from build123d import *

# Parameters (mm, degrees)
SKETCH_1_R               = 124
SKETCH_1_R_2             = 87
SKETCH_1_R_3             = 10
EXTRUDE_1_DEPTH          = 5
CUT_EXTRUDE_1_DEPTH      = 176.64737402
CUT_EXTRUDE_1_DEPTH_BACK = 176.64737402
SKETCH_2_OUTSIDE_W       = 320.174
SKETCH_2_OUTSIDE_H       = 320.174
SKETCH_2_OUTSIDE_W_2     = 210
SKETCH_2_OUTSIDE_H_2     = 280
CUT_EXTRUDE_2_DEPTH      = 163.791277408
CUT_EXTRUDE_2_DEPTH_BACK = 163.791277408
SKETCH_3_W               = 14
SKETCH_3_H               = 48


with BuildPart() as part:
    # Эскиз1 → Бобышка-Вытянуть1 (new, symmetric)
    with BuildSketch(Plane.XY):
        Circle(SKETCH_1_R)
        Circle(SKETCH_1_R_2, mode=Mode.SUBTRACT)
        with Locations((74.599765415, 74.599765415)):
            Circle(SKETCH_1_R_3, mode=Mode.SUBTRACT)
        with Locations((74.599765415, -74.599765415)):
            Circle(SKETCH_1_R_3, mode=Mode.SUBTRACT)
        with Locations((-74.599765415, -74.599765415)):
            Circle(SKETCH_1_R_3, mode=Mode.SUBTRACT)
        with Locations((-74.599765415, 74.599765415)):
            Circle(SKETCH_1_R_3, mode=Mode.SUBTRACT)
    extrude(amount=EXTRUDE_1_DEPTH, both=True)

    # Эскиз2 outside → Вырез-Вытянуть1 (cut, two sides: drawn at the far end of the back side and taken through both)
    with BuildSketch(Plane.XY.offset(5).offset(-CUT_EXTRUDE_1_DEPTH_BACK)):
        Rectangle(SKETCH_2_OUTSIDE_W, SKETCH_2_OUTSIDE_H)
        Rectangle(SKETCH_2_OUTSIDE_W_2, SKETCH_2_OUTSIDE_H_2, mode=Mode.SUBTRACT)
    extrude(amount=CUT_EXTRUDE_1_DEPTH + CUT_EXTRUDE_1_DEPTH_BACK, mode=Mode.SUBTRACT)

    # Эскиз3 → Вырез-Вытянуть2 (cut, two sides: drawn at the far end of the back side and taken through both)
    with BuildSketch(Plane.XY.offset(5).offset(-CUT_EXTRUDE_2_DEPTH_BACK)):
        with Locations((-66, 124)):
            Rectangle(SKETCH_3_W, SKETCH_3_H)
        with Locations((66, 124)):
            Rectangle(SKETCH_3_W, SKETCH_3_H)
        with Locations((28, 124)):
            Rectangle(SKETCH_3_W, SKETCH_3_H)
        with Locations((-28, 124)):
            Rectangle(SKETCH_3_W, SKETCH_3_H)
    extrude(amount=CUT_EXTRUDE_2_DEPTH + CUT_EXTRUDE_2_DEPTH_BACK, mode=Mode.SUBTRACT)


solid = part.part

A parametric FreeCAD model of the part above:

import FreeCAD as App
import Part
import Sketcher
from FreeCAD import Vector

doc = App.newDocument("Part")
body = doc.addObject("PartDesign::Body", "Body")

# Sketch on XY plane
sketch1 = doc.addObject("Sketcher::SketchObject", "Sketch")
body.addObject(sketch1)
sketch1.AttachmentSupport = (doc.XY_Plane, [""])
sketch1.MapMode = "FlatFace"
sketch1.addGeometry([
    Part.Circle(Vector(0, 0, 0), Vector(0, 0, 1), 124),  # 0
    Part.Circle(Vector(-74.599765, -74.599765, 0), Vector(0, 0, 1), 10),  # 1
    Part.Circle(Vector(74.599765, -74.599765, 0), Vector(0, 0, 1), 10),  # 2
    Part.Circle(Vector(-74.599765, 74.599765, 0), Vector(0, 0, 1), 10),  # 3
    Part.Circle(Vector(0, 0, 0), Vector(0, 0, 1), 87),  # 4
    Part.Circle(Vector(74.599765, 74.599765, 0), Vector(0, 0, 1), 10),  # 5
], False)
sketch1.addConstraint([
    Sketcher.Constraint("Coincident", 0, 3, -1, 1),
    Sketcher.Constraint("Coincident", 4, 3, -1, 1),
    Sketcher.Constraint("Equal", 1, 2),
    Sketcher.Constraint("Equal", 2, 3),
    Sketcher.Constraint("Equal", 3, 5),
    Sketcher.Constraint("Symmetric", 2, 3, 3, 3, -1, 1),
    Sketcher.Constraint("Symmetric", 1, 3, 5, 3, -1, 1),
    Sketcher.Constraint("Symmetric", 1, 3, 2, 3, -2),
    Sketcher.Constraint("Diameter", 0, 248.0),
    Sketcher.Constraint("Diameter", 1, 20.0),
    Sketcher.Constraint("Diameter", 4, 174.0),
    Sketcher.Constraint("DistanceX", 1, 3, 2, 3, 149.199531),
    Sketcher.Constraint("DistanceY", 1, 3, 3, 3, 149.199531),
])
pad1 = doc.addObject("PartDesign::Pad", "Pad")
body.addObject(pad1)
pad1.Profile = sketch1
pad1.Length = 10
pad1.Midplane = True

# Sketch on XY plane
sketch2 = doc.addObject("Sketcher::SketchObject", "Sketch001")
body.addObject(sketch2)
sketch2.AttachmentSupport = (doc.XY_Plane, [""])
sketch2.MapMode = "FlatFace"
sketch2.AttachmentOffset = App.Placement(Vector(0, 0, 5), App.Rotation())
sketch2.addGeometry([
    Part.LineSegment(Vector(-160.087, 160.087, 0), Vector(-160.087, -160.087, 0)),  # 0
    Part.LineSegment(Vector(-160.087, -160.087, 0), Vector(160.087, -160.087, 0)),  # 1
    Part.LineSegment(Vector(160.087, -160.087, 0), Vector(160.087, 160.087, 0)),  # 2
    Part.LineSegment(Vector(160.087, 160.087, 0), Vector(-160.087, 160.087, 0)),  # 3
    Part.LineSegment(Vector(105, -140, 0), Vector(-105, -140, 0)),  # 4
    Part.LineSegment(Vector(-105, -140, 0), Vector(-105, 140, 0)),  # 5
    Part.LineSegment(Vector(-105, 140, 0), Vector(105, 140, 0)),  # 6
    Part.LineSegment(Vector(105, 140, 0), Vector(105, -140, 0)),  # 7
], False)
sketch2.addConstraint([
    Sketcher.Constraint("Coincident", 0, 2, 1, 1),
    Sketcher.Constraint("Coincident", 1, 2, 2, 1),
    Sketcher.Constraint("Coincident", 2, 2, 3, 1),
    Sketcher.Constraint("Coincident", 3, 2, 0, 1),
    Sketcher.Constraint("Coincident", 4, 2, 5, 1),
    Sketcher.Constraint("Coincident", 5, 2, 6, 1),
    Sketcher.Constraint("Coincident", 6, 2, 7, 1),
    Sketcher.Constraint("Coincident", 7, 2, 4, 1),
    Sketcher.Constraint("Vertical", 0),
    Sketcher.Constraint("Horizontal", 1),
    Sketcher.Constraint("Vertical", 2),
    Sketcher.Constraint("Horizontal", 3),
    Sketcher.Constraint("Horizontal", 4),
    Sketcher.Constraint("Vertical", 5),
    Sketcher.Constraint("Horizontal", 6),
    Sketcher.Constraint("Vertical", 7),
    Sketcher.Constraint("Symmetric", 0, 2, 2, 2, -1, 1),
    Sketcher.Constraint("Symmetric", 4, 2, 6, 2, -1, 1),
    Sketcher.Constraint("Equal", 3, 0),
    Sketcher.Constraint("DistanceX", 4, 2, 4, 1, 210.0),
    Sketcher.Constraint("DistanceY", 5, 1, 5, 2, 280.0),
    Sketcher.Constraint("DistanceX", 1, 1, 1, 2, 320.174),
])
pocket1 = doc.addObject("PartDesign::Pocket", "Pocket")
body.addObject(pocket1)
pocket1.Profile = sketch2
pocket1.Type = "ThroughAll"
pocket1.Midplane = True

# Sketch on XY plane
sketch3 = doc.addObject("Sketcher::SketchObject", "Sketch002")
body.addObject(sketch3)
sketch3.AttachmentSupport = (doc.XY_Plane, [""])
sketch3.MapMode = "FlatFace"
sketch3.AttachmentOffset = App.Placement(Vector(0, 0, 5), App.Rotation())
sketch3.addGeometry([
    Part.LineSegment(Vector(-73, 148, 0), Vector(-73, 100, 0)),  # 0
    Part.LineSegment(Vector(-73, 100, 0), Vector(-59, 100, 0)),  # 1
    Part.LineSegment(Vector(-59, 100, 0), Vector(-59, 148, 0)),  # 2
    Part.LineSegment(Vector(-59, 148, 0), Vector(-73, 148, 0)),  # 3
    Part.LineSegment(Vector(59, 148, 0), Vector(59, 100, 0)),  # 4
    Part.LineSegment(Vector(59, 100, 0), Vector(73, 100, 0)),  # 5
    Part.LineSegment(Vector(73, 100, 0), Vector(73, 148, 0)),  # 6
    Part.LineSegment(Vector(73, 148, 0), Vector(59, 148, 0)),  # 7
    Part.LineSegment(Vector(21, 148, 0), Vector(21, 100, 0)),  # 8
    Part.LineSegment(Vector(21, 100, 0), Vector(35, 100, 0)),  # 9
    Part.LineSegment(Vector(35, 100, 0), Vector(35, 148, 0)),  # 10
    Part.LineSegment(Vector(35, 148, 0), Vector(21, 148, 0)),  # 11
    Part.LineSegment(Vector(-35, 148, 0), Vector(-35, 100, 0)),  # 12
    Part.LineSegment(Vector(-35, 100, 0), Vector(-21, 100, 0)),  # 13
    Part.LineSegment(Vector(-21, 100, 0), Vector(-21, 148, 0)),  # 14
    Part.LineSegment(Vector(-21, 148, 0), Vector(-35, 148, 0)),  # 15
], False)
sketch3.addConstraint([
    Sketcher.Constraint("Coincident", 0, 2, 1, 1),
    Sketcher.Constraint("Coincident", 1, 2, 2, 1),
    Sketcher.Constraint("Coincident", 2, 2, 3, 1),
    Sketcher.Constraint("Coincident", 3, 2, 0, 1),
    Sketcher.Constraint("Coincident", 4, 2, 5, 1),
    Sketcher.Constraint("Coincident", 5, 2, 6, 1),
    Sketcher.Constraint("Coincident", 6, 2, 7, 1),
    Sketcher.Constraint("Coincident", 7, 2, 4, 1),
    Sketcher.Constraint("Coincident", 8, 2, 9, 1),
    Sketcher.Constraint("Coincident", 9, 2, 10, 1),
    Sketcher.Constraint("Coincident", 10, 2, 11, 1),
    Sketcher.Constraint("Coincident", 11, 2, 8, 1),
    Sketcher.Constraint("Coincident", 12, 2, 13, 1),
    Sketcher.Constraint("Coincident", 13, 2, 14, 1),
    Sketcher.Constraint("Coincident", 14, 2, 15, 1),
    Sketcher.Constraint("Coincident", 15, 2, 12, 1),
    Sketcher.Constraint("Vertical", 0),
    Sketcher.Constraint("Horizontal", 1),
    Sketcher.Constraint("Vertical", 2),
    Sketcher.Constraint("Horizontal", 3),
    Sketcher.Constraint("Vertical", 4),
    Sketcher.Constraint("Horizontal", 5),
    Sketcher.Constraint("Vertical", 6),
    Sketcher.Constraint("Horizontal", 7),
    Sketcher.Constraint("Vertical", 8),
    Sketcher.Constraint("Horizontal", 9),
    Sketcher.Constraint("Vertical", 10),
    Sketcher.Constraint("Horizontal", 11),
    Sketcher.Constraint("Vertical", 12),
    Sketcher.Constraint("Horizontal", 13),
    Sketcher.Constraint("Vertical", 14),
    Sketcher.Constraint("Horizontal", 15),
    Sketcher.Constraint("Symmetric", 1, 2, 4, 2, -2),
    Sketcher.Constraint("Symmetric", 3, 2, 6, 2, -2),
    Sketcher.Constraint("Symmetric", 9, 2, 12, 2, -2),
    Sketcher.Constraint("Symmetric", 11, 2, 14, 2, -2),
    Sketcher.Constraint("Horizontal", 5, 2, 8, 2),
    Sketcher.Constraint("Horizontal", 7, 2, 10, 2),
    Sketcher.Constraint("Equal", 7, 9),
    Sketcher.Constraint("DistanceX", 1, 1, 1, 2, 14.0),
    Sketcher.Constraint("DistanceY", 0, 2, 0, 1, 48.0),
    Sketcher.Constraint("DistanceX", 0, 2, -1, 1, 73.0),
    Sketcher.Constraint("DistanceY", -1, 1, 0, 2, 100.0),
    Sketcher.Constraint("DistanceX", -1, 1, 8, 2, 21.0),
])
pocket2 = doc.addObject("PartDesign::Pocket", "Pocket001")
body.addObject(pocket2)
pocket2.Profile = sketch3
pocket2.Type = "ThroughAll"
pocket2.Midplane = True

doc.recompute()
